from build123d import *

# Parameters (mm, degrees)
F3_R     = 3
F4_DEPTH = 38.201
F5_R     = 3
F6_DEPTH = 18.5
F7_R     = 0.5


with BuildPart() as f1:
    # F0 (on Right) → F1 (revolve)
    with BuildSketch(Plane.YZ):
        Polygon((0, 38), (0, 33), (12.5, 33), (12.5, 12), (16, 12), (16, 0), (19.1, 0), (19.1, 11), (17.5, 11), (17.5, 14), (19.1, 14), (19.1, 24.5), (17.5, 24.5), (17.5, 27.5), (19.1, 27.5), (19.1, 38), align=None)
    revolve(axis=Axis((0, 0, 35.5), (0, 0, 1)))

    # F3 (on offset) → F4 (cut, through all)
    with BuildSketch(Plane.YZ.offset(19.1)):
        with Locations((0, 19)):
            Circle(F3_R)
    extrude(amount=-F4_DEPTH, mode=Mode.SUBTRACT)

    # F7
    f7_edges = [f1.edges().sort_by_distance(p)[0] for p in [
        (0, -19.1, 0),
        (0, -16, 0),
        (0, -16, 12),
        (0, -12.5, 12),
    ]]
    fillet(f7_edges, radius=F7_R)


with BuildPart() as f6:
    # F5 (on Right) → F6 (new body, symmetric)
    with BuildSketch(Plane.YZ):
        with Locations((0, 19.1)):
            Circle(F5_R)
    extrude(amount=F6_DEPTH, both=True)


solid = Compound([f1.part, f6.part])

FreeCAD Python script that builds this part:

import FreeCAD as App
import Part
import Sketcher
Q = App.Units.Quantity


def edges_at(feature, points):
    """Names of the edges that pass closest to the given points."""
    edges = feature.Shape.Edges
    near = lambda p: min(range(len(edges)), key=lambda i: edges[i].distToShape(Part.Vertex(*p))[0])
    return sorted({f"Edge{near(p) + 1}" for p in points})

doc = App.newDocument("Part")
body = doc.addObject("PartDesign::Body", "Body")

sketch1 = doc.addObject("Sketcher::SketchObject", "Sketch")
body.addObject(sketch1)
sketch1.AttachmentSupport = (doc.YZ_Plane, [""])
sketch1.MapMode = "FlatFace"
sketch1.addGeometry([
    Part.LineSegment(App.Vector(0, 38, 0), App.Vector(0, 33, 0)),
    Part.LineSegment(App.Vector(0, 33, 0), App.Vector(12.5, 33, 0)),
    Part.LineSegment(App.Vector(12.5, 33, 0), App.Vector(12.5, 12, 0)),
    Part.LineSegment(App.Vector(12.5, 12, 0), App.Vector(16, 12, 0)),
    Part.LineSegment(App.Vector(16, 12, 0), App.Vector(16, 0, 0)),
    Part.LineSegment(App.Vector(16, 0, 0), App.Vector(19.1, 0, 0)),
    Part.LineSegment(App.Vector(19.1, 0, 0), App.Vector(19.1, 11, 0)),
    Part.LineSegment(App.Vector(19.1, 11, 0), App.Vector(17.5, 11, 0)),
    Part.LineSegment(App.Vector(17.5, 11, 0), App.Vector(17.5, 14, 0)),
    Part.LineSegment(App.Vector(17.5, 14, 0), App.Vector(19.1, 14, 0)),
    Part.LineSegment(App.Vector(19.1, 14, 0), App.Vector(19.1, 24.5, 0)),
    Part.LineSegment(App.Vector(19.1, 24.5, 0), App.Vector(17.5, 24.5, 0)),
    Part.LineSegment(App.Vector(17.5, 24.5, 0), App.Vector(17.5, 27.5, 0)),
    Part.LineSegment(App.Vector(17.5, 27.5, 0), App.Vector(19.1, 27.5, 0)),
    Part.LineSegment(App.Vector(19.1, 27.5, 0), App.Vector(19.1, 38, 0)),
    Part.LineSegment(App.Vector(19.1, 38, 0), App.Vector(0, 38, 0)),
], False)
sketch1.addConstraint([
    Sketcher.Constraint("Coincident", 0, 2, 1, 1),
    Sketcher.Constraint("Coincident", 1, 2, 2, 1),
    Sketcher.Constraint("Coincident", 2, 2, 3, 1),
    Sketcher.Constraint("Coincident", 3, 2, 4, 1),
    Sketcher.Constraint("Coincident", 4, 2, 5, 1),
    Sketcher.Constraint("Coincident", 5, 2, 6, 1),
    Sketcher.Constraint("Coincident", 6, 2, 7, 1),
    Sketcher.Constraint("Coincident", 7, 2, 8, 1),
    Sketcher.Constraint("Coincident", 8, 2, 9, 1),
    Sketcher.Constraint("Coincident", 9, 2, 10, 1),
    Sketcher.Constraint("Coincident", 10, 2, 11, 1),
    Sketcher.Constraint("Coincident", 11, 2, 12, 1),
    Sketcher.Constraint("Coincident", 12, 2, 13, 1),
    Sketcher.Constraint("Coincident", 13, 2, 14, 1),
    Sketcher.Constraint("Coincident", 14, 2, 15, 1),
    Sketcher.Constraint("Coincident", 15, 2, 0, 1),
    Sketcher.Constraint("Vertical", 0),
    Sketcher.Constraint("Horizontal", 1),
    Sketcher.Constraint("Vertical", 2),
    Sketcher.Constraint("Horizontal", 3),
    Sketcher.Constraint("Vertical", 4),
    Sketcher.Constraint("Horizontal", 5),
    Sketcher.Constraint("Vertical", 6),
    Sketcher.Constraint("Horizontal", 7),
    Sketcher.Constraint("Vertical", 8),
    Sketcher.Constraint("Horizontal", 9),
    Sketcher.Constraint("Vertical", 10),
    Sketcher.Constraint("Horizontal", 11),
    Sketcher.Constraint("Vertical", 12),
    Sketcher.Constraint("Horizontal", 13),
    Sketcher.Constraint("Vertical", 14),
    Sketcher.Constraint("Horizontal", 15),
    Sketcher.Constraint("PointOnObject", 0, 2, -2),
    Sketcher.Constraint("PointOnObject", 4, 2, -1),
    Sketcher.Constraint("Vertical", 6, 2, 9, 2),
    Sketcher.Constraint("Vertical", 8, 2, 11, 2),
    Sketcher.Constraint("Vertical", 10, 2, 13, 2),
    Sketcher.Constraint("Equal", 8, 12),
    Sketcher.Constraint("Equal", 10, 14),
    Sketcher.Constraint("DistanceY", 0, 2, 0, 1, Q("5 mm")),
    Sketcher.Constraint("DistanceY", 2, 2, 2, 1, Q("21 mm")),
    Sketcher.Constraint("DistanceY", 4, 2, 4, 1, Q("12 mm")),
    Sketcher.Constraint("DistanceY", 6, 1, 6, 2, Q("11 mm")),
    Sketcher.Constraint("DistanceY", 8, 1, 8, 2, Q("3 mm")),
    Sketcher.Constraint("DistanceX", 1, 1, 1, 2, Q("12.5 mm")),
    Sketcher.Constraint("DistanceX", 3, 1, 3, 2, Q("3.5 mm")),
    Sketcher.Constraint("DistanceX", 5, 1, 5, 2, Q("3.1 mm")),
    Sketcher.Constraint("DistanceX", 7, 2, 7, 1, Q("1.6 mm")),
])
revolution = doc.addObject("PartDesign::Revolution", "Revolution")
body.addObject(revolution)
revolution.Profile = sketch1
revolution.ReferenceAxis = (sketch1, ["V_Axis"])
revolution.Angle = 360

sketch2 = doc.addObject("Sketcher::SketchObject", "Sketch001")
body.addObject(sketch2)
sketch2.AttachmentSupport = (doc.YZ_Plane, [""])
sketch2.MapMode = "FlatFace"
sketch2.AttachmentOffset = App.Placement(App.Vector(0, 0, 19.1), App.Rotation())
sketch2.addGeometry(Part.Circle(App.Vector(0, 19, 0), App.Vector(0, 0, 1), 3), False)
sketch2.addConstraint([
    Sketcher.Constraint("PointOnObject", 0, 3, -2),
    Sketcher.Constraint("Diameter", 0, Q("6 mm")),
    Sketcher.Constraint("DistanceY", -1, 1, 0, 3, Q("19 mm")),
])
pocket1 = doc.addObject("PartDesign::Pocket", "Pocket")
body.addObject(pocket1)
pocket1.Profile = sketch2
pocket1.Type = "ThroughAll"
doc.recompute()

fillet = doc.addObject("PartDesign::Fillet", "Fillet")
body.addObject(fillet)
fillet.Base = (pocket1, edges_at(pocket1, [
    (0, -19.1, 0),
    (0, -16, 0),
    (0, -16, 12),
    (0, -12.5, 12),
]))
fillet.Radius = 0.5
body2 = doc.addObject("PartDesign::Body", "Body001")

sketch3 = doc.addObject("Sketcher::SketchObject", "Sketch002")
body2.addObject(sketch3)
sketch3.AttachmentSupport = (doc.getObject("YZ_Plane001"), [""])
sketch3.MapMode = "FlatFace"
sketch3.addGeometry(Part.Circle(App.Vector(0, 19.1, 0), App.Vector(0, 0, 1), 3), False)
sketch3.addConstraint([
    Sketcher.Constraint("PointOnObject", 0, 3, -2),
    Sketcher.Constraint("Diameter", 0, Q("6 mm")),
    Sketcher.Constraint("DistanceY", -1, 1, 0, 3, Q("19.1 mm")),
])
pad1 = doc.addObject("PartDesign::Pad", "Pad")
body2.addObject(pad1)
pad1.Profile = sketch3
pad1.Length = 37
pad1.Midplane = True

doc.recompute()
